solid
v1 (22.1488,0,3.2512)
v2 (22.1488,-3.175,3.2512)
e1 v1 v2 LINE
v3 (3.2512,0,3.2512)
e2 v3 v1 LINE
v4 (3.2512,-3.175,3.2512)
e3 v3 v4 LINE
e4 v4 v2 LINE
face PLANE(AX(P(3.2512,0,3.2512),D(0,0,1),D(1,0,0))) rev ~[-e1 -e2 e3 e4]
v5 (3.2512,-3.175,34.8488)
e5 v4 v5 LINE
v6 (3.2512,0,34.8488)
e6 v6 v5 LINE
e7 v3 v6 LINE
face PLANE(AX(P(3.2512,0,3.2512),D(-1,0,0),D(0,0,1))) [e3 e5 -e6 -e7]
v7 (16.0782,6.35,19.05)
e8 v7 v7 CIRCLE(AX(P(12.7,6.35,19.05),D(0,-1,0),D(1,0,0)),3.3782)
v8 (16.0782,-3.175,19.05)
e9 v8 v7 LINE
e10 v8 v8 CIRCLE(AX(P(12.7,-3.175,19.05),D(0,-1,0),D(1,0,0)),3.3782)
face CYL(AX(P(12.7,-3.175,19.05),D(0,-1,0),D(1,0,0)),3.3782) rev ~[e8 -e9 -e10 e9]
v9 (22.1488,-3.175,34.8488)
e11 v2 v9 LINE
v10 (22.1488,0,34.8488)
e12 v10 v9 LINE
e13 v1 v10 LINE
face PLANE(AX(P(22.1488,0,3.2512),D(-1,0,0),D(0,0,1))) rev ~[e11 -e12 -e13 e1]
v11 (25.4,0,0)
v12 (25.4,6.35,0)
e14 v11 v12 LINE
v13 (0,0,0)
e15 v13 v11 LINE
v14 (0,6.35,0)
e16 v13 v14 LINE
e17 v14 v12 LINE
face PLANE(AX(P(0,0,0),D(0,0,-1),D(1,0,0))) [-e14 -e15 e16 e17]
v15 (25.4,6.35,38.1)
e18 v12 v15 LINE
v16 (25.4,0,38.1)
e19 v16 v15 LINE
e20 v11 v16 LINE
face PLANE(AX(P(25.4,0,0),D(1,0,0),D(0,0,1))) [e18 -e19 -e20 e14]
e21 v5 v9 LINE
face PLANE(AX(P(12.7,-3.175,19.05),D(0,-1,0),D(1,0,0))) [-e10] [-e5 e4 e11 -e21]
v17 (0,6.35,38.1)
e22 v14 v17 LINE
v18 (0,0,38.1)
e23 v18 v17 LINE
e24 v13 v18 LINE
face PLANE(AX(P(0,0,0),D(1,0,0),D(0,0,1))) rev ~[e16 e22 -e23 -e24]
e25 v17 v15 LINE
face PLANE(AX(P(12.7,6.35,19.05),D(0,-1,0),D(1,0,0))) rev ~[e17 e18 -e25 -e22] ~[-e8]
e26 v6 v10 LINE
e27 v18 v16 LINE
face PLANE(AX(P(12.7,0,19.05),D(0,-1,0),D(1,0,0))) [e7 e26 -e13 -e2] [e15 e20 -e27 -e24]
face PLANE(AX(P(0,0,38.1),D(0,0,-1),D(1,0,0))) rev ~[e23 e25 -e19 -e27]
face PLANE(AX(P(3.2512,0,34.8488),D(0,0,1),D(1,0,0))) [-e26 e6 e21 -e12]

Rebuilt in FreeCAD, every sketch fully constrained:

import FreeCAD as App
import Part
import Sketcher
Q = App.Units.Quantity

doc = App.newDocument("Part")
body = doc.addObject("PartDesign::Body", "Body")

sketch1 = doc.addObject("Sketcher::SketchObject", "Sketch")
body.addObject(sketch1)
sketch1.AttachmentSupport = (doc.XZ_Plane, [""])
sketch1.MapMode = "FlatFace"
sketch1.addGeometry(Part.LineSegment(App.Vector(0, 38.1, 0), App.Vector(0, 0, 0)), False)
sketch1.addGeometry(Part.LineSegment(App.Vector(0, 0, 0), App.Vector(25.4, 0, 0)), False)
sketch1.addGeometry(Part.LineSegment(App.Vector(25.4, 0, 0), App.Vector(25.4, 38.1, 0)), False)
sketch1.addGeometry(Part.LineSegment(App.Vector(25.4, 38.1, 0), App.Vector(0, 38.1, 0)), False)
sketch1.addConstraint(Sketcher.Constraint("Coincident", 0, 2, 1, 1))
sketch1.addConstraint(Sketcher.Constraint("Coincident", 1, 2, 2, 1))
sketch1.addConstraint(Sketcher.Constraint("Coincident", 2, 2, 3, 1))
sketch1.addConstraint(Sketcher.Constraint("Coincident", 3, 2, 0, 1))
sketch1.addConstraint(Sketcher.Constraint("Vertical", 0))
sketch1.addConstraint(Sketcher.Constraint("Horizontal", 1))
sketch1.addConstraint(Sketcher.Constraint("Vertical", 2))
sketch1.addConstraint(Sketcher.Constraint("Horizontal", 3))
sketch1.addConstraint(Sketcher.Constraint("Coincident", 0, 2, -1, 1))
sketch1.addConstraint(Sketcher.Constraint("DistanceX", 1, 1, 1, 2, Q("1 in")))
sketch1.addConstraint(Sketcher.Constraint("DistanceY", 0, 2, 0, 1, Q("1.5 in")))
pad1 = doc.addObject("PartDesign::Pad", "Pad")
body.addObject(pad1)
pad1.Profile = sketch1
pad1.Length = Q("0.25 in")
pad1.Reversed = True

sketch2 = doc.addObject("Sketcher::SketchObject", "Sketch001")
body.addObject(sketch2)
sketch2.AttachmentSupport = (doc.XZ_Plane, [""])
sketch2.MapMode = "FlatFace"
sketch2.addGeometry(Part.LineSegment(App.Vector(3.2512, 34.8488, 0), App.Vector(3.2512, 3.2512, 0)), False)
sketch2.addGeometry(Part.LineSegment(App.Vector(3.2512, 3.2512, 0), App.Vector(22.1488, 3.2512, 0)), False)
sketch2.addGeometry(Part.LineSegment(App.Vector(22.1488, 3.2512, 0), App.Vector(22.1488, 34.8488, 0)), False)
sketch2.addGeometry(Part.LineSegment(App.Vector(22.1488, 34.8488, 0), App.Vector(3.2512, 34.8488, 0)), False)
sketch2.addConstraint(Sketcher.Constraint("Coincident", 0, 2, 1, 1))
sketch2.addConstraint(Sketcher.Constraint("Coincident", 1, 2, 2, 1))
sketch2.addConstraint(Sketcher.Constraint("Coincident", 2, 2, 3, 1))
sketch2.addConstraint(Sketcher.Constraint("Coincident", 3, 2, 0, 1))
sketch2.addConstraint(Sketcher.Constraint("Vertical", 0))
sketch2.addConstraint(Sketcher.Constraint("Horizontal", 1))
sketch2.addConstraint(Sketcher.Constraint("Vertical", 2))
sketch2.addConstraint(Sketcher.Constraint("Horizontal", 3))
sketch2.addConstraint(Sketcher.Constraint("DistanceX", 1, 1, 1, 2, Q("0.744 in")))
sketch2.addConstraint(Sketcher.Constraint("DistanceY", 0, 2, 0, 1, Q("1.244 in")))
sketch2.addConstraint(Sketcher.Constraint("DistanceX", -1, 1, 0, 2, Q("0.128 in")))
sketch2.addConstraint(Sketcher.Constraint("DistanceY", -1, 1, 0, 2, Q("0.128 in")))
pad2 = doc.addObject("PartDesign::Pad", "Pad001")
body.addObject(pad2)
pad2.Profile = sketch2
pad2.Length = Q("0.125 in")

sketch3 = doc.addObject("Sketcher::SketchObject", "Sketch002")
body.addObject(sketch3)
sketch3.AttachmentSupport = (doc.XZ_Plane, [""])
sketch3.MapMode = "FlatFace"
sketch3.AttachmentOffset = App.Placement(App.Vector(0, 0, 0.125 * 25.4), App.Rotation())
sketch3.addGeometry(Part.Circle(App.Vector(12.7, 19.05, 0), App.Vector(0, 0, 1), 3.3782), False)
sketch3.addConstraint(Sketcher.Constraint("Diameter", 0, Q("0.266 in")))
sketch3.addConstraint(Sketcher.Constraint("DistanceX", -1, 1, 0, 3, Q("0.5 in")))
sketch3.addConstraint(Sketcher.Constraint("DistanceY", -1, 1, 0, 3, Q("0.75 in")))
pocket1 = doc.addObject("PartDesign::Pocket", "Pocket")
body.addObject(pocket1)
pocket1.Profile = sketch3
pocket1.Length = Q("1 in")

doc.recompute()
